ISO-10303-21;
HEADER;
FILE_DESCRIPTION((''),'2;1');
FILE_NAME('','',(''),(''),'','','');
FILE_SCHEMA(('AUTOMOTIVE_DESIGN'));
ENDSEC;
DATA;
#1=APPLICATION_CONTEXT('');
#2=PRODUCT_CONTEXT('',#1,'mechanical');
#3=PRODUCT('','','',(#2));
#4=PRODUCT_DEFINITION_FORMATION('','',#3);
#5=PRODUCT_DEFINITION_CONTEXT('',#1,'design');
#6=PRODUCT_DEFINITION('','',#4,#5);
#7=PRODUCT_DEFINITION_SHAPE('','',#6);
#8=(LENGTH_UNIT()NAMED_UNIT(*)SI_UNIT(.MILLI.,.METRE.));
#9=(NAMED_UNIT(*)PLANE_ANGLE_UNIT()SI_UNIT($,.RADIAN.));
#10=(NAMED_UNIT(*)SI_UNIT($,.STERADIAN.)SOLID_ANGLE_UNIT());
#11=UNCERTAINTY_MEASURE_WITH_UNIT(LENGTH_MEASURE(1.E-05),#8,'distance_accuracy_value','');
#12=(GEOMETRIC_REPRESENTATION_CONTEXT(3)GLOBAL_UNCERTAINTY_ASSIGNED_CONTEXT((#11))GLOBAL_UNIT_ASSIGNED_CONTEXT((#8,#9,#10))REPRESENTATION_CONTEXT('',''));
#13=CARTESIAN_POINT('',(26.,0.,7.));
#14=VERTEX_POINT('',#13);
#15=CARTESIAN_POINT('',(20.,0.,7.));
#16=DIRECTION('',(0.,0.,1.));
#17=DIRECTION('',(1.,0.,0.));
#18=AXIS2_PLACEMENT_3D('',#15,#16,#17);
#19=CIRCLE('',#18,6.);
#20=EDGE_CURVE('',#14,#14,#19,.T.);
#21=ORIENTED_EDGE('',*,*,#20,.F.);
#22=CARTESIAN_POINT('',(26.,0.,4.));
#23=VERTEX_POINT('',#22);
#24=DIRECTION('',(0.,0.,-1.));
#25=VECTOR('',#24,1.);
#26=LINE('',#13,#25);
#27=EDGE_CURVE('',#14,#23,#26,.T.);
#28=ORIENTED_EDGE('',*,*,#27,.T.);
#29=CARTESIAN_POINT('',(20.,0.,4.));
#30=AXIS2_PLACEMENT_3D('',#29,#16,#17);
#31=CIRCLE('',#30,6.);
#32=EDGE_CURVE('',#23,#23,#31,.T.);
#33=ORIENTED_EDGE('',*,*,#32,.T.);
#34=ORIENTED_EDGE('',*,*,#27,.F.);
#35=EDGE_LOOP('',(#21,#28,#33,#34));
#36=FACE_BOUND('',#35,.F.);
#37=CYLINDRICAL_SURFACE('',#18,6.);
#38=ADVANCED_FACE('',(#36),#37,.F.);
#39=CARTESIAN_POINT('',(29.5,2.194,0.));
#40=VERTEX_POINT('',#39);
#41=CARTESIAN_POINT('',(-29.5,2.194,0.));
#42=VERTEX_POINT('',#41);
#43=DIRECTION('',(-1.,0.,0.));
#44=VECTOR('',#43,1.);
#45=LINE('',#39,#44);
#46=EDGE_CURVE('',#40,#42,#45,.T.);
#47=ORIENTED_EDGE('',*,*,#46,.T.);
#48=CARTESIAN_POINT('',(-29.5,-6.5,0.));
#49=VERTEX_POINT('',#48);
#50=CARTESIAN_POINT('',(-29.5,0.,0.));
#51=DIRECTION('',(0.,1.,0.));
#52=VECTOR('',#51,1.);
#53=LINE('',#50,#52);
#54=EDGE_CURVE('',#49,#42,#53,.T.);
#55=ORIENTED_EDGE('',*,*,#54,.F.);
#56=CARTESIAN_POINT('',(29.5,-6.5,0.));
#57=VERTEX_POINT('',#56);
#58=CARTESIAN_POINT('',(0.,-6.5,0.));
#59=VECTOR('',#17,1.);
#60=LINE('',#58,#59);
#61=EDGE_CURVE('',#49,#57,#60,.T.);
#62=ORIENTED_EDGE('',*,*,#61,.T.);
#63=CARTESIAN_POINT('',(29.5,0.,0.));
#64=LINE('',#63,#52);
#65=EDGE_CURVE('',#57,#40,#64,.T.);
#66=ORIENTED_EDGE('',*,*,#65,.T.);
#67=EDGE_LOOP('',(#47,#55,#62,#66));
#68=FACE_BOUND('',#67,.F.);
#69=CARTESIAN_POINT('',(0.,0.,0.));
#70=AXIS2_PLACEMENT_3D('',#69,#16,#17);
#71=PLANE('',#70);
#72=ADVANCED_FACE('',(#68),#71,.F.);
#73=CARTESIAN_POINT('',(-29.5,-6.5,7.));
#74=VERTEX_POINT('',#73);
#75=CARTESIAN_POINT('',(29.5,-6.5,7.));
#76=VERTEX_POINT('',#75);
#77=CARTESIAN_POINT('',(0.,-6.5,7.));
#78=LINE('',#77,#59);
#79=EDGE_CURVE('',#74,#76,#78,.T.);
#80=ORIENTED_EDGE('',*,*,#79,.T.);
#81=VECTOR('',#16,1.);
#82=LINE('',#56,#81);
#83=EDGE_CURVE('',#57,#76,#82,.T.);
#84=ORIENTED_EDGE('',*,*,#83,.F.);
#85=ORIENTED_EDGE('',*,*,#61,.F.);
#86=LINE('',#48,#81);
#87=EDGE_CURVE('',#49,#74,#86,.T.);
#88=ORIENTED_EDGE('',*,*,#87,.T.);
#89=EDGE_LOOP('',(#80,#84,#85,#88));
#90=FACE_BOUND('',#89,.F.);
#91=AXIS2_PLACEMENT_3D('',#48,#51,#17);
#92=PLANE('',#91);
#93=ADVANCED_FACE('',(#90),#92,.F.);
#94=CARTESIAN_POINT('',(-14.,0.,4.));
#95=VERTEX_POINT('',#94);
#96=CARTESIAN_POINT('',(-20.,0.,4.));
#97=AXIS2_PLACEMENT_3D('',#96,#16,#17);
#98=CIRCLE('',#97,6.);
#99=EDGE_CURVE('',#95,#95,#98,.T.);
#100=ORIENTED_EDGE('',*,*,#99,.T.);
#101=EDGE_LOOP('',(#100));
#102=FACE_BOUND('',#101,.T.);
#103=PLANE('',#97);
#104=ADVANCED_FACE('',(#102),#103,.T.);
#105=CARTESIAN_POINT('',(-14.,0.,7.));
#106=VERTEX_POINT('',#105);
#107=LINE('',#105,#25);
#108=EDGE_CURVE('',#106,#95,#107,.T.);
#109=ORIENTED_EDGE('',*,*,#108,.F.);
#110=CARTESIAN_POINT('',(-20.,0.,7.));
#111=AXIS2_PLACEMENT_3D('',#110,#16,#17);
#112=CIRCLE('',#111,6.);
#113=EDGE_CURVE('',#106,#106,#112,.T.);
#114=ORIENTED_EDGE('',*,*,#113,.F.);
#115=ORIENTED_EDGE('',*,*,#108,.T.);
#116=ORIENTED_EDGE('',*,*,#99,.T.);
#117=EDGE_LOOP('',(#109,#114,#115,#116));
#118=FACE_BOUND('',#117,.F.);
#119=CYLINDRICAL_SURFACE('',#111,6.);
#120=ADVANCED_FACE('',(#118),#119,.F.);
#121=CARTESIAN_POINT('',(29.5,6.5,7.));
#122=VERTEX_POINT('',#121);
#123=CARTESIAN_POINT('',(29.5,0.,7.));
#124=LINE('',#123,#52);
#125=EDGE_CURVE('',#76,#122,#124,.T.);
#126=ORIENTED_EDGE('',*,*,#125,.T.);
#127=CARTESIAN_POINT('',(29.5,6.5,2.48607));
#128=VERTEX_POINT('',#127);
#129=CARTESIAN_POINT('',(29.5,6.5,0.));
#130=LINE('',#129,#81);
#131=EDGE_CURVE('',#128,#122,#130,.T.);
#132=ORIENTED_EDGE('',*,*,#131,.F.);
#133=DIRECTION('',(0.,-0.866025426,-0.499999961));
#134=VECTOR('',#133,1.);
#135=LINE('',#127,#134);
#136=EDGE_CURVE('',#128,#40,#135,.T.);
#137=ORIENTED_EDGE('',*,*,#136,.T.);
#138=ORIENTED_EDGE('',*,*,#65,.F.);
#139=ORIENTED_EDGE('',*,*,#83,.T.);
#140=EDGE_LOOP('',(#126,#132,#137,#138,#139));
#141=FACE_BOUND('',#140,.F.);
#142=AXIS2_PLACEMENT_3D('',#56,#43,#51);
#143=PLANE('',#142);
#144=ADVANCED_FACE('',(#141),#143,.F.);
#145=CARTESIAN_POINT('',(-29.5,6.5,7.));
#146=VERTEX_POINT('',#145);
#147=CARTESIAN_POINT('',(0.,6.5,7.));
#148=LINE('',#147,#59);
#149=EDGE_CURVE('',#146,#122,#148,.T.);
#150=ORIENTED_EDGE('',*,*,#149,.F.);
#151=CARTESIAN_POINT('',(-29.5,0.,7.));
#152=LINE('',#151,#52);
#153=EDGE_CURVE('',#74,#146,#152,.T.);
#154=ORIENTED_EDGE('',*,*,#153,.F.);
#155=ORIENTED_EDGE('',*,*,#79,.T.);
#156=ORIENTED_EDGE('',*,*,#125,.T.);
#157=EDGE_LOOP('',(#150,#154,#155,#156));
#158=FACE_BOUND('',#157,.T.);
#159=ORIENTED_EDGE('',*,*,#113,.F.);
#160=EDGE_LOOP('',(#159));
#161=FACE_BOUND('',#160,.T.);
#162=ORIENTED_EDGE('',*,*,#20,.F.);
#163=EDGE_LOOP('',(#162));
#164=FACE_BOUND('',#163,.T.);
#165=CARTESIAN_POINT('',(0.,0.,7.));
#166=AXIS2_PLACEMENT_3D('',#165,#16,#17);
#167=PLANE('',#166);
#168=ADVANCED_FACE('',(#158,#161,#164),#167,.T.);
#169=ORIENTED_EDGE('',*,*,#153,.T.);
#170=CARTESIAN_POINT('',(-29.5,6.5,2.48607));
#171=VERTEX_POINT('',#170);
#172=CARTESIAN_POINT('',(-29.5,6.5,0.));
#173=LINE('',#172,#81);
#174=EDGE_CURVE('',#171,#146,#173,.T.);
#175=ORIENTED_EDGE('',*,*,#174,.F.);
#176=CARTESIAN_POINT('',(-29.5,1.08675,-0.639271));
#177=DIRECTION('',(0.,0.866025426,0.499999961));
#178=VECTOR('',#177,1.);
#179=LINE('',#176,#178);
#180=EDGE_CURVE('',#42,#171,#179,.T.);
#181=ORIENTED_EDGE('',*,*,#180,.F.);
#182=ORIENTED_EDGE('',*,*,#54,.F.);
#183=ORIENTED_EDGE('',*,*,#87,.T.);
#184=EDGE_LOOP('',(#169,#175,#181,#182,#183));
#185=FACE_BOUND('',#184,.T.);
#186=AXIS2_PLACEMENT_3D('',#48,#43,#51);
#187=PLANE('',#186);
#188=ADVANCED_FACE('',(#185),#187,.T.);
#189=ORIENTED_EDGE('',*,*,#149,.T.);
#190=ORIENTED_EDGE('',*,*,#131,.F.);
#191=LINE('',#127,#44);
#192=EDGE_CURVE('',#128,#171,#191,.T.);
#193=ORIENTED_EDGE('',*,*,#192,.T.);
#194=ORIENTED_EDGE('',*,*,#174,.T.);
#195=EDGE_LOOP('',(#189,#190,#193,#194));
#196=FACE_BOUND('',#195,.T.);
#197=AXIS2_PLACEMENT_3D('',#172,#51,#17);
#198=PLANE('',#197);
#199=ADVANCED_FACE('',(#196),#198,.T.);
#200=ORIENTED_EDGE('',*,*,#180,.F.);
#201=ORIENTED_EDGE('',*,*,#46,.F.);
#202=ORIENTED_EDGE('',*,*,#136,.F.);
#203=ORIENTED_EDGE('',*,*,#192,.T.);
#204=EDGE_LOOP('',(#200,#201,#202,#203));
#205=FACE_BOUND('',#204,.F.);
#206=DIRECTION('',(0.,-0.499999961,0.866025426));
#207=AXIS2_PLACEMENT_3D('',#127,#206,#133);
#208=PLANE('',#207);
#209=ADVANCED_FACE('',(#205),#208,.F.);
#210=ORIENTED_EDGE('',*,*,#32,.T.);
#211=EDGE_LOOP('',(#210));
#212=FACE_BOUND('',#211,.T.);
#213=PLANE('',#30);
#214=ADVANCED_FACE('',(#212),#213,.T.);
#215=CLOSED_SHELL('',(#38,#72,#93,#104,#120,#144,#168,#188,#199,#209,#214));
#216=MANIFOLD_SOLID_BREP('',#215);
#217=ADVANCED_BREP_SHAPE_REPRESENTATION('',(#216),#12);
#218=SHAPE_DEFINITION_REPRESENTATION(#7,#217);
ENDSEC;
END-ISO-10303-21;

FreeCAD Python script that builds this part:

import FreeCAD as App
import Part
import Sketcher
from FreeCAD import Vector
Q = App.Units.Quantity

doc = App.newDocument("Part")
body = doc.addObject("PartDesign::Body", "Body")

# Sketch on XY plane
sketch1 = body.newObject("Sketcher::SketchObject", "Sketch")
sketch1.AttachmentSupport = (doc.getObject("XY_Plane"), [""])
sketch1.MapMode = "FlatFace"
sketch1.addGeometry([
    Part.LineSegment(Vector(-30, 6, 0), Vector(-30, -6, 0)),
    Part.LineSegment(Vector(-30, -6, 0), Vector(30, -6, 0)),
    Part.LineSegment(Vector(30, -6, 0), Vector(30, 6, 0)),
    Part.LineSegment(Vector(30, 6, 0), Vector(-30, 6, 0)),
], False)
sketch1.addConstraint([
    Sketcher.Constraint("Coincident", 0, 2, 1, 1),
    Sketcher.Constraint("Coincident", 1, 2, 2, 1),
    Sketcher.Constraint("Coincident", 2, 2, 3, 1),
    Sketcher.Constraint("Coincident", 3, 2, 0, 1),
    Sketcher.Constraint("Vertical", 0),
    Sketcher.Constraint("Horizontal", 1),
    Sketcher.Constraint("Vertical", 2),
    Sketcher.Constraint("Horizontal", 3),
    Sketcher.Constraint("Symmetric", 0, 2, 2, 2, -1, 1),
    Sketcher.Constraint("DistanceX", 1, 1, 1, 2, 59.0),
    Sketcher.Constraint("DistanceY", 0, 2, 0, 1, 13.0),
])
pad1 = body.newObject("PartDesign::Pad", "Pad")
pad1.Profile = sketch1
pad1.Length = 7

# Sketch on XY plane
sketch2 = body.newObject("Sketcher::SketchObject", "Sketch001")
sketch2.AttachmentSupport = (doc.getObject("XY_Plane"), [""])
sketch2.MapMode = "FlatFace"
sketch2.AttachmentOffset = App.Placement(Vector(0, 0, 7), App.Rotation())
sketch2.addGeometry([
    Part.Circle(Vector(-20, 0, 0), Vector(0, 0, 1), 6),
    Part.Circle(Vector(20, 0, 0), Vector(0, 0, 1), 6),
], False)
sketch2.addConstraint([
    Sketcher.Constraint("Equal", 0, 1),
    Sketcher.Constraint("Symmetric", 0, 3, 1, 3, -1, 1),
    Sketcher.Constraint("PointOnObject", 0, 3, -1),
    Sketcher.Constraint("Diameter", 0, 12.0),
    Sketcher.Constraint("DistanceX", 0, 3, -1, 1, 20.0),
])
pocket1 = body.newObject("PartDesign::Pocket", "Pocket")
pocket1.Profile = sketch2
pocket1.Length = 3

# Sketch on YZ plane
sketch3 = body.newObject("Sketcher::SketchObject", "Sketch002")
sketch3.AttachmentSupport = (doc.getObject("YZ_Plane"), [""])
sketch3.MapMode = "FlatFace"
sketch3.AttachmentOffset = App.Placement(Vector(0, 0, 29.5), App.Rotation())
sketch3.addGeometry([
    Part.LineSegment(Vector(2.2, 0, 0), Vector(6.5, 0, 0)),
    Part.LineSegment(Vector(6.5, 0, 0), Vector(6.5, 2.5, 0)),
    Part.LineSegment(Vector(6.5, 2.5, 0), Vector(2.2, 0, 0)),
], False)
sketch3.addConstraint([
    Sketcher.Constraint("Coincident", 0, 2, 1, 1),
    Sketcher.Constraint("Coincident", 1, 2, 2, 1),
    Sketcher.Constraint("Coincident", 2, 2, 0, 1),
    Sketcher.Constraint("Horizontal", 0),
    Sketcher.Constraint("Vertical", 1),
    Sketcher.Constraint("PointOnObject", 0, 2, -1),
    Sketcher.Constraint("Angle", 2, Q("-150.000003 deg")),
    Sketcher.Constraint("DistanceX", -1, 1, 0, 2, 6.5),
    Sketcher.Constraint("DistanceX", 0, 1, 0, 2, 4.306),
])
pocket2 = body.newObject("PartDesign::Pocket", "Pocket001")
pocket2.Profile = sketch3
pocket2.Length = 70

doc.recompute()
